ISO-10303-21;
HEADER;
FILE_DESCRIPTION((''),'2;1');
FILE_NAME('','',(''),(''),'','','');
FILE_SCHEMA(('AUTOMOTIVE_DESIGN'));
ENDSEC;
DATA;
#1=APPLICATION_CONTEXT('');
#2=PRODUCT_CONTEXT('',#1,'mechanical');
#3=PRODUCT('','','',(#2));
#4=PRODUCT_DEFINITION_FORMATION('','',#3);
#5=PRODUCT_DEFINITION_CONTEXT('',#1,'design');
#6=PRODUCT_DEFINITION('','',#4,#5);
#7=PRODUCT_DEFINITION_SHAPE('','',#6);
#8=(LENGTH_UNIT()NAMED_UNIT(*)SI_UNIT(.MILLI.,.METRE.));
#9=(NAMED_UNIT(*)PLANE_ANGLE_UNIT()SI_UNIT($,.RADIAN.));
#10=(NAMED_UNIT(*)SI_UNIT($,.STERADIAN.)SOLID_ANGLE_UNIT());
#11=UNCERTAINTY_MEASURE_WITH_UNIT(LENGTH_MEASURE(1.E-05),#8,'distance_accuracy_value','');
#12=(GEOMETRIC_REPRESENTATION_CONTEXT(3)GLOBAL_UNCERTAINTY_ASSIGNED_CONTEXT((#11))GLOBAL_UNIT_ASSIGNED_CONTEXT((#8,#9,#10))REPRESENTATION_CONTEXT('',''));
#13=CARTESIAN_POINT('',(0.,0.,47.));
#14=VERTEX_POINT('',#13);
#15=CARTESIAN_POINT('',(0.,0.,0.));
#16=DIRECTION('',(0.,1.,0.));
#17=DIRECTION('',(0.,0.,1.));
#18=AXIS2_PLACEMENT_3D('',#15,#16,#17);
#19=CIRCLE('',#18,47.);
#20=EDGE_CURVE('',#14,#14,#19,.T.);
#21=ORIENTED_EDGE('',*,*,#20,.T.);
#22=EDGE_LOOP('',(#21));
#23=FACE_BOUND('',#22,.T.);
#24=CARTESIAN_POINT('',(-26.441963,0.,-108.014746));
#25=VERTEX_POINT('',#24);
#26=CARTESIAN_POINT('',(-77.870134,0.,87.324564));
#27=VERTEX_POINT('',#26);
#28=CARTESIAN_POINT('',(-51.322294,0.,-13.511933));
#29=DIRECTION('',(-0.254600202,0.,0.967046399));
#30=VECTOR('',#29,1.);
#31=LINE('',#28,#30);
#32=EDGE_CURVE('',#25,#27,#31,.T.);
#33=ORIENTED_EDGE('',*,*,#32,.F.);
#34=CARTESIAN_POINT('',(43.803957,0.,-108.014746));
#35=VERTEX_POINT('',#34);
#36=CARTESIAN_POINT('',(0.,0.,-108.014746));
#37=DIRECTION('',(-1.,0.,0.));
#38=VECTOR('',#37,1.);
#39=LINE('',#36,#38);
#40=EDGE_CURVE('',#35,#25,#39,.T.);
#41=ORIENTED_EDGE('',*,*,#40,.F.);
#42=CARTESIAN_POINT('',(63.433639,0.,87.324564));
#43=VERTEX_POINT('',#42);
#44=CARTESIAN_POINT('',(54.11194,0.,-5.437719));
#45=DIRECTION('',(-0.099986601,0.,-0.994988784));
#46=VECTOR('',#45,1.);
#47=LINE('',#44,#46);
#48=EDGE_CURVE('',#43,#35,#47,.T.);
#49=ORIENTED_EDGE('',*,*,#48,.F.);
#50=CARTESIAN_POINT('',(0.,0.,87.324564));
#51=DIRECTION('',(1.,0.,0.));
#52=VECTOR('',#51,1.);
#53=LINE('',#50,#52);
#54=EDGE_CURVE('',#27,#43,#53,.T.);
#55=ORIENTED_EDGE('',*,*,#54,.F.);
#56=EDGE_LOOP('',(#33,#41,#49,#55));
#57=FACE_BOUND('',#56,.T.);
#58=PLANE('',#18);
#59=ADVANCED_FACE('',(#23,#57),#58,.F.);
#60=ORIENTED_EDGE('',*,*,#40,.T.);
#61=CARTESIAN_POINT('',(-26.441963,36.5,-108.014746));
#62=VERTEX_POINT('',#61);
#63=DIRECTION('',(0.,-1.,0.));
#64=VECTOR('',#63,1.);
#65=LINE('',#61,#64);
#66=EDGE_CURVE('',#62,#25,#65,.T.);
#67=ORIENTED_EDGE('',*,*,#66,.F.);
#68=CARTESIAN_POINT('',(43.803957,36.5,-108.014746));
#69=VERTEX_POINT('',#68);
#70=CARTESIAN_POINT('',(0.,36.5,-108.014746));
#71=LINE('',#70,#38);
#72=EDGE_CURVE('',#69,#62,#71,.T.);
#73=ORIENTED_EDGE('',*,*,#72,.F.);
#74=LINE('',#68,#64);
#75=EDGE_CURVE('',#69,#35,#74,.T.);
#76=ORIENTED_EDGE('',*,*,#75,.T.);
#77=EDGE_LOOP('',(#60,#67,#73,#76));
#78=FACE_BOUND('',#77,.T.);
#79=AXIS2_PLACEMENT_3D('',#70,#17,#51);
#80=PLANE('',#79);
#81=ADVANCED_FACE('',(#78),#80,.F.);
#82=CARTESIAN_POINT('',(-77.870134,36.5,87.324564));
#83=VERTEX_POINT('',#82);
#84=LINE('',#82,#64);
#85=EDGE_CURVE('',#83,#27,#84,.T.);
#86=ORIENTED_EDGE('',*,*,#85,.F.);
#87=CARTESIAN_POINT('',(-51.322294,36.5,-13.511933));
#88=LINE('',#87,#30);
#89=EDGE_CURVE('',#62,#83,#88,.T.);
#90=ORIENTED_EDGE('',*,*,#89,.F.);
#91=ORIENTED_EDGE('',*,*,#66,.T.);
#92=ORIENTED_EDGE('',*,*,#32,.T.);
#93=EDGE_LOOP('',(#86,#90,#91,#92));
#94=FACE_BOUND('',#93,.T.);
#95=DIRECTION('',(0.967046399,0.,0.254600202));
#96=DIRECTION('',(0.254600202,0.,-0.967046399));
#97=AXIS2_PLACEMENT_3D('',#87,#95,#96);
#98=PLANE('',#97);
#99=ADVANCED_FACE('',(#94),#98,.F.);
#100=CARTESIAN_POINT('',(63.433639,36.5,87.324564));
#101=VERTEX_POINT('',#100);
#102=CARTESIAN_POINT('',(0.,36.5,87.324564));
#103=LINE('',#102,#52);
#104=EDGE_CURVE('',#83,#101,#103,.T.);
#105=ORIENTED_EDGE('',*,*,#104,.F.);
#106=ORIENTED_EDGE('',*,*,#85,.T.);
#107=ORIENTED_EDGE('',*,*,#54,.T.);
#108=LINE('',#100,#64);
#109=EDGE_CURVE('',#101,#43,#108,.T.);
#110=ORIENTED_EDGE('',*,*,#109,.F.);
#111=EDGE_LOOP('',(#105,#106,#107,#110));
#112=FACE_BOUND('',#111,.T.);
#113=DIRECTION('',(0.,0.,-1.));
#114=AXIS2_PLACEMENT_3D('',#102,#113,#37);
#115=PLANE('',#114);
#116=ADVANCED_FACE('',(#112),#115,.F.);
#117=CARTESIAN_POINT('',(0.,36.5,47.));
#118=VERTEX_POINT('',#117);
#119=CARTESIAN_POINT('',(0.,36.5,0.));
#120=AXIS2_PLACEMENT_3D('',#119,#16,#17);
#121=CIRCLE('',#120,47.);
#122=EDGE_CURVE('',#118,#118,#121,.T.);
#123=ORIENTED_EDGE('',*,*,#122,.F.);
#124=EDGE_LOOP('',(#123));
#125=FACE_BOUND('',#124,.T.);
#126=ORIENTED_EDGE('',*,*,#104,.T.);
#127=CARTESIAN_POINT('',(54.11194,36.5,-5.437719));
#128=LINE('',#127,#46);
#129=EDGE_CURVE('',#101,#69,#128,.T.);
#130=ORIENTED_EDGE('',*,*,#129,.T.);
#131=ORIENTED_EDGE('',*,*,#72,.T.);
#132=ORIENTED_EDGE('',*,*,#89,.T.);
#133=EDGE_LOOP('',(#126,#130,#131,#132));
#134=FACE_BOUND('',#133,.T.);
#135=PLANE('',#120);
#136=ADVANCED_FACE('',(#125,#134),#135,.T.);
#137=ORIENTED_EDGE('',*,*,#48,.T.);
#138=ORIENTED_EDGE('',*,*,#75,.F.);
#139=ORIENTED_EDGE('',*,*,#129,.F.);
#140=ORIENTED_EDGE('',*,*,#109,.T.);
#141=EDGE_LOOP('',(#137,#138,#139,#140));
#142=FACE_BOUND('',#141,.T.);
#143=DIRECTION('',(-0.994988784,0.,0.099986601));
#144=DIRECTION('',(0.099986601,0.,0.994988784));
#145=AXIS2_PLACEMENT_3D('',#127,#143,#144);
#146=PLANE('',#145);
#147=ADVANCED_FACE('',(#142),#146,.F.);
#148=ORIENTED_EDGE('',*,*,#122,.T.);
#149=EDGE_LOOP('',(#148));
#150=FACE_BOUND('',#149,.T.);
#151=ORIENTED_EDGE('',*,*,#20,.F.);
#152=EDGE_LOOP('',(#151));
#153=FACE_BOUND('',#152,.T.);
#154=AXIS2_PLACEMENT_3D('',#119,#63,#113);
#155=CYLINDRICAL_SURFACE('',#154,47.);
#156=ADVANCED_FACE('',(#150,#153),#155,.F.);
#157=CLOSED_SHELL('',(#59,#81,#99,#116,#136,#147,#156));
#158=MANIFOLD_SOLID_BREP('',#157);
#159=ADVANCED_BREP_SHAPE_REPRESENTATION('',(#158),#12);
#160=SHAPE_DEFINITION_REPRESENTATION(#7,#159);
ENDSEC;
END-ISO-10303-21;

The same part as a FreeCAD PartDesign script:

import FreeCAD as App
import Part
import Sketcher

doc = App.newDocument("Part")
params = doc.addObject("Spreadsheet::Sheet", "Params")
for row, (alias, value) in enumerate([
    ("sketch1_diameter", "94 mm"),
    ("pad1_length", "36.5 mm"),
], start=1):
    params.set(f"A{row}", alias)
    params.set(f"B{row}", "=" + value)
    params.setAlias(f"B{row}", alias)

body = doc.addObject("PartDesign::Body", "Body")

# Sketch on XZ plane
sketch1 = doc.addObject("Sketcher::SketchObject", "Sketch")
body.addObject(sketch1)
sketch1.AttachmentSupport = (doc.XZ_Plane, [""])
sketch1.MapMode = "FlatFace"
sketch1.addGeometry(Part.LineSegment(App.Vector(44, -108, 0), App.Vector(-26, -108, 0)), False)
sketch1.addGeometry(Part.LineSegment(App.Vector(-26, -108, 0), App.Vector(-78, 87, 0)), False)
sketch1.addGeometry(Part.LineSegment(App.Vector(-78, 87, 0), App.Vector(63, 87, 0)), False)
sketch1.addGeometry(Part.LineSegment(App.Vector(63, 87, 0), App.Vector(44, -108, 0)), False)
sketch1.addGeometry(Part.Circle(App.Vector(0, 0, 0), App.Vector(0, 0, 1), 47), False)
sketch1.addConstraint(Sketcher.Constraint("Coincident", 0, 2, 1, 1))
sketch1.addConstraint(Sketcher.Constraint("Coincident", 1, 2, 2, 1))
sketch1.addConstraint(Sketcher.Constraint("Coincident", 2, 2, 3, 1))
sketch1.addConstraint(Sketcher.Constraint("Coincident", 3, 2, 0, 1))
sketch1.addConstraint(Sketcher.Constraint("Horizontal", 0))
sketch1.addConstraint(Sketcher.Constraint("Horizontal", 2))
sketch1.addConstraint(Sketcher.Constraint("Coincident", 4, 3, -1, 1))
sketch1.addConstraint(Sketcher.Constraint("Diameter", 4, 94.0))
sketch1.addConstraint(Sketcher.Constraint("Distance", 1, 201.995799))
sketch1.addConstraint(Sketcher.Constraint("DistanceX", 0, 2, 0, 1, 70.245919))
sketch1.addConstraint(Sketcher.Constraint("DistanceX", 0, 2, 2, 2, 89.875601))
sketch1.addConstraint(Sketcher.Constraint("DistanceX", 2, 1, 2, 2, 141.303773))
sketch1.addConstraint(Sketcher.Constraint("DistanceX", -1, 1, 2, 2, 63.433639))
sketch1.addConstraint(Sketcher.Constraint("DistanceY", 0, 2, -1, 1, 108.014746))
sketch1.setExpression("Constraints[7]", "Params.sketch1_diameter")
pad1 = doc.addObject("PartDesign::Pad", "Pad")
body.addObject(pad1)
pad1.Profile = sketch1
pad1.setExpression("Length", "Params.pad1_length")
pad1.Reversed = True

doc.recompute()
